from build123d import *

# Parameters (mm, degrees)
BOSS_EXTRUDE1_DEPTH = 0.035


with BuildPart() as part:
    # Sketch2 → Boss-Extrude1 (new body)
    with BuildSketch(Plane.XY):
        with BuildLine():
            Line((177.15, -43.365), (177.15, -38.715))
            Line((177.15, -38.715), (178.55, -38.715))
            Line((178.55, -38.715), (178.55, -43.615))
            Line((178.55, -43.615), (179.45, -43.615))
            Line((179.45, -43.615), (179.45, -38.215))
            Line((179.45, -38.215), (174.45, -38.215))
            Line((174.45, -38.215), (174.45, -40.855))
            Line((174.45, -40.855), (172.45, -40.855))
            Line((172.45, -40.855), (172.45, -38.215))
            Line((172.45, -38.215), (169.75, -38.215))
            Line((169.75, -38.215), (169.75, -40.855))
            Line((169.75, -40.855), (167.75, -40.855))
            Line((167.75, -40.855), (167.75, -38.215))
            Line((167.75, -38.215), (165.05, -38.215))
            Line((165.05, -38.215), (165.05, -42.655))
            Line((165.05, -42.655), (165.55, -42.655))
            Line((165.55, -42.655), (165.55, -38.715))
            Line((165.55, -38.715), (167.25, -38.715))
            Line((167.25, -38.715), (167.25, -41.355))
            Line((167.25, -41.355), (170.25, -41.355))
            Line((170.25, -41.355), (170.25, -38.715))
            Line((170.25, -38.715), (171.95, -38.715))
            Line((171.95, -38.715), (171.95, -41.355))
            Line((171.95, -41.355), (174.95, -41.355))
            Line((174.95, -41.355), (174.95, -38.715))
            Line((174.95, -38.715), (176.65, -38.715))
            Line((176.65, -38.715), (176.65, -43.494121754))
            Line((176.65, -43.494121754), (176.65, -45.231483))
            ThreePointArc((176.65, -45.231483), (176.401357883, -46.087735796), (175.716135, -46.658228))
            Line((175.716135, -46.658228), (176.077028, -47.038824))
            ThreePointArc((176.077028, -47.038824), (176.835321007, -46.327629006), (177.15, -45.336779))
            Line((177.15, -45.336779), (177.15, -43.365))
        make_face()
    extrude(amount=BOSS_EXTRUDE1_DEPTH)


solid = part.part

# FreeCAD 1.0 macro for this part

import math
import FreeCAD as App
import Part
import Sketcher

V = App.Vector

doc = App.newDocument("Part")
body = doc.addObject("PartDesign::Body", "Body")

# Sketch on XY plane
sketch1 = body.newObject("Sketcher::SketchObject", "Sketch")
sketch1.AttachmentSupport = (doc.getObject("XY_Plane"), [""])
sketch1.MapMode = "FlatFace"
sketch1.addGeometry([
    Part.LineSegment(V(177.2, -38.7, 0), V(178.6, -38.7, 0)),  # 0
    Part.LineSegment(V(178.6, -38.7, 0), V(178.6, -43.6, 0)),  # 1
    Part.LineSegment(V(178.6, -43.6, 0), V(179.4, -43.6, 0)),  # 2
    Part.LineSegment(V(179.4, -43.6, 0), V(179.4, -38.2, 0)),  # 3
    Part.LineSegment(V(179.4, -38.2, 0), V(174.4, -38.2, 0)),  # 4
    Part.LineSegment(V(174.4, -38.2, 0), V(174.4, -40.9, 0)),  # 5
    Part.LineSegment(V(174.4, -40.9, 0), V(172.4, -40.9, 0)),  # 6
    Part.LineSegment(V(172.4, -40.9, 0), V(172.4, -38.2, 0)),  # 7
    Part.LineSegment(V(172.4, -38.2, 0), V(169.8, -38.2, 0)),  # 8
    Part.LineSegment(V(169.8, -38.2, 0), V(169.8, -40.9, 0)),  # 9
    Part.LineSegment(V(169.8, -40.9, 0), V(167.8, -40.9, 0)),  # 10
    Part.LineSegment(V(167.8, -40.9, 0), V(167.8, -38.2, 0)),  # 11
    Part.LineSegment(V(167.8, -38.2, 0), V(165.1, -38.2, 0)),  # 12
    Part.LineSegment(V(165.1, -38.2, 0), V(165.1, -42.7, 0)),  # 13
    Part.LineSegment(V(165.1, -42.7, 0), V(165.6, -42.7, 0)),  # 14
    Part.LineSegment(V(165.6, -42.7, 0), V(165.6, -38.7, 0)),  # 15
    Part.LineSegment(V(165.6, -38.7, 0), V(167.2, -38.7, 0)),  # 16
    Part.LineSegment(V(167.2, -38.7, 0), V(167.2, -41.4, 0)),  # 17
    Part.LineSegment(V(167.2, -41.4, 0), V(170.2, -41.4, 0)),  # 18
    Part.LineSegment(V(170.2, -41.4, 0), V(170.2, -38.7, 0)),  # 19
    Part.LineSegment(V(170.2, -38.7, 0), V(171.9, -38.7, 0)),  # 20
    Part.LineSegment(V(171.9, -38.7, 0), V(171.9, -41.4, 0)),  # 21
    Part.LineSegment(V(171.9, -41.4, 0), V(174.9, -41.4, 0)),  # 22
    Part.LineSegment(V(174.9, -41.4, 0), V(174.9, -38.7, 0)),  # 23
    Part.LineSegment(V(174.9, -38.7, 0), V(176.7, -38.7, 0)),  # 24
    Part.LineSegment(V(176.7, -38.7, 0), V(176.7, -45.2, 0)),  # 25
    Part.ArcOfCircle(Part.Circle(V(175.1, -45.3, 0), V(0, 0, 1), 1.5), math.radians(-67), math.radians(1)),  # 26
    Part.LineSegment(V(175.7, -46.7, 0), V(176.1, -47, 0)),  # 27
    Part.ArcOfCircle(Part.Circle(V(175.1, -45.2, 0), V(0, 0, 1), 2.1), math.radians(-61), math.radians(-3)),  # 28
    Part.LineSegment(V(177.2, -45.3, 0), V(177.2, -38.7, 0)),  # 29
], False)
sketch1.addConstraint([
    Sketcher.Constraint("Coincident", 0, 2, 1, 1),
    Sketcher.Constraint("Coincident", 1, 2, 2, 1),
    Sketcher.Constraint("Coincident", 2, 2, 3, 1),
    Sketcher.Constraint("Coincident", 3, 2, 4, 1),
    Sketcher.Constraint("Coincident", 4, 2, 5, 1),
    Sketcher.Constraint("Coincident", 5, 2, 6, 1),
    Sketcher.Constraint("Coincident", 6, 2, 7, 1),
    Sketcher.Constraint("Coincident", 7, 2, 8, 1),
    Sketcher.Constraint("Coincident", 8, 2, 9, 1),
    Sketcher.Constraint("Coincident", 9, 2, 10, 1),
    Sketcher.Constraint("Coincident", 10, 2, 11, 1),
    Sketcher.Constraint("Coincident", 11, 2, 12, 1),
    Sketcher.Constraint("Coincident", 12, 2, 13, 1),
    Sketcher.Constraint("Coincident", 13, 2, 14, 1),
    Sketcher.Constraint("Coincident", 14, 2, 15, 1),
    Sketcher.Constraint("Coincident", 15, 2, 16, 1),
    Sketcher.Constraint("Coincident", 16, 2, 17, 1),
    Sketcher.Constraint("Coincident", 17, 2, 18, 1),
    Sketcher.Constraint("Coincident", 18, 2, 19, 1),
    Sketcher.Constraint("Coincident", 19, 2, 20, 1),
    Sketcher.Constraint("Coincident", 20, 2, 21, 1),
    Sketcher.Constraint("Coincident", 21, 2, 22, 1),
    Sketcher.Constraint("Coincident", 22, 2, 23, 1),
    Sketcher.Constraint("Coincident", 23, 2, 24, 1),
    Sketcher.Constraint("Coincident", 24, 2, 25, 1),
    Sketcher.Constraint("Coincident", 25, 2, 26, 2),
    Sketcher.Constraint("Coincident", 26, 1, 27, 1),
    Sketcher.Constraint("Coincident", 27, 2, 28, 1),
    Sketcher.Constraint("Coincident", 28, 2, 29, 1),
    Sketcher.Constraint("Coincident", 29, 2, 0, 1),
    Sketcher.Constraint("Horizontal", 0),
    Sketcher.Constraint("Vertical", 1),
    Sketcher.Constraint("Horizontal", 2),
    Sketcher.Constraint("Vertical", 3),
    Sketcher.Constraint("Horizontal", 4),
    Sketcher.Constraint("Vertical", 5),
    Sketcher.Constraint("Horizontal", 6),
    Sketcher.Constraint("Vertical", 7),
    Sketcher.Constraint("Horizontal", 8),
    Sketcher.Constraint("Vertical", 9),
    Sketcher.Constraint("Horizontal", 10),
    Sketcher.Constraint("Vertical", 11),
    Sketcher.Constraint("Horizontal", 12),
    Sketcher.Constraint("Vertical", 13),
    Sketcher.Constraint("Horizontal", 14),
    Sketcher.Constraint("Vertical", 15),
    Sketcher.Constraint("Horizontal", 16),
    Sketcher.Constraint("Vertical", 17),
    Sketcher.Constraint("Horizontal", 18),
    Sketcher.Constraint("Vertical", 19),
    Sketcher.Constraint("Horizontal", 20),
    Sketcher.Constraint("Vertical", 21),
    Sketcher.Constraint("Horizontal", 22),
    Sketcher.Constraint("Vertical", 23),
    Sketcher.Constraint("Horizontal", 24),
    Sketcher.Constraint("Vertical", 25),
    Sketcher.Constraint("Vertical", 29),
    Sketcher.Constraint("Horizontal", 4, 2, 7, 2),
    Sketcher.Constraint("Horizontal", 6, 2, 9, 2),
    Sketcher.Constraint("Horizontal", 8, 2, 11, 2),
    Sketcher.Constraint("Horizontal", 0, 2, 15, 2),
    Sketcher.Constraint("Horizontal", 16, 2, 19, 2),
    Sketcher.Constraint("Horizontal", 18, 2, 21, 2),
    Sketcher.Constraint("Horizontal", 20, 2, 23, 2),
    Sketcher.Constraint("Equal", 6, 10),
    Sketcher.Constraint("Equal", 8, 12),
    Sketcher.Constraint("Equal", 16, 20),
    Sketcher.Constraint("Equal", 18, 22),
    Sketcher.Constraint("Equal", 20, 24),
    Sketcher.Constraint("Equal", 11, 17),
    Sketcher.Constraint("DistanceX", 4, 2, 4, 1, 5.0),
    Sketcher.Constraint("DistanceX", 6, 2, 6, 1, 2.0),
    Sketcher.Constraint("DistanceX", 18, 1, 18, 2, 3.0),
    Sketcher.Constraint("DistanceX", 0, 1, 0, 2, 1.4),
    Sketcher.Constraint("DistanceX", 2, 1, 2, 2, 0.9),
    Sketcher.Constraint("DistanceX", 8, 2, 8, 1, 2.7),
    Sketcher.Constraint("DistanceX", 14, 1, 14, 2, 0.5),
    Sketcher.Constraint("DistanceX", 16, 1, 16, 2, 1.7),
    Sketcher.Constraint("DistanceY", 1, 2, 1, 1, 4.9),
    Sketcher.Constraint("DistanceY", 3, 1, 3, 2, 5.4),
    Sketcher.Constraint("DistanceY", 5, 2, 5, 1, 2.64),
    Sketcher.Constraint("DistanceY", 13, 2, 13, 1, 4.44),
    Sketcher.Constraint("DistanceX", -1, 1, 0, 2, 178.55),
    Sketcher.Constraint("DistanceY", 0, 2, -1, 1, 38.715),
    Sketcher.Constraint("Radius", 26, 1.523594),
    Sketcher.Constraint("Radius", 28, 2.061016),
    Sketcher.Constraint("DistanceY", 29, 1, 29, 2, 6.621779),
    Sketcher.Constraint("DistanceY", 26, 3, 28, 3, 0.0248),
    Sketcher.Constraint("DistanceY", 26, 1, 26, 3, 1.4049),
    Sketcher.Constraint("DistanceX", 28, 3, 27, 2, 0.985199),
    Sketcher.Constraint("DistanceY", 25, 2, 25, 1, 6.516483),
    Sketcher.Constraint("DistanceY", 26, 3, -1, 1, 45.253328),
])
pad1 = body.newObject("PartDesign::Pad", "Pad")
pad1.Profile = sketch1
pad1.Length = 0.035

doc.recompute()
